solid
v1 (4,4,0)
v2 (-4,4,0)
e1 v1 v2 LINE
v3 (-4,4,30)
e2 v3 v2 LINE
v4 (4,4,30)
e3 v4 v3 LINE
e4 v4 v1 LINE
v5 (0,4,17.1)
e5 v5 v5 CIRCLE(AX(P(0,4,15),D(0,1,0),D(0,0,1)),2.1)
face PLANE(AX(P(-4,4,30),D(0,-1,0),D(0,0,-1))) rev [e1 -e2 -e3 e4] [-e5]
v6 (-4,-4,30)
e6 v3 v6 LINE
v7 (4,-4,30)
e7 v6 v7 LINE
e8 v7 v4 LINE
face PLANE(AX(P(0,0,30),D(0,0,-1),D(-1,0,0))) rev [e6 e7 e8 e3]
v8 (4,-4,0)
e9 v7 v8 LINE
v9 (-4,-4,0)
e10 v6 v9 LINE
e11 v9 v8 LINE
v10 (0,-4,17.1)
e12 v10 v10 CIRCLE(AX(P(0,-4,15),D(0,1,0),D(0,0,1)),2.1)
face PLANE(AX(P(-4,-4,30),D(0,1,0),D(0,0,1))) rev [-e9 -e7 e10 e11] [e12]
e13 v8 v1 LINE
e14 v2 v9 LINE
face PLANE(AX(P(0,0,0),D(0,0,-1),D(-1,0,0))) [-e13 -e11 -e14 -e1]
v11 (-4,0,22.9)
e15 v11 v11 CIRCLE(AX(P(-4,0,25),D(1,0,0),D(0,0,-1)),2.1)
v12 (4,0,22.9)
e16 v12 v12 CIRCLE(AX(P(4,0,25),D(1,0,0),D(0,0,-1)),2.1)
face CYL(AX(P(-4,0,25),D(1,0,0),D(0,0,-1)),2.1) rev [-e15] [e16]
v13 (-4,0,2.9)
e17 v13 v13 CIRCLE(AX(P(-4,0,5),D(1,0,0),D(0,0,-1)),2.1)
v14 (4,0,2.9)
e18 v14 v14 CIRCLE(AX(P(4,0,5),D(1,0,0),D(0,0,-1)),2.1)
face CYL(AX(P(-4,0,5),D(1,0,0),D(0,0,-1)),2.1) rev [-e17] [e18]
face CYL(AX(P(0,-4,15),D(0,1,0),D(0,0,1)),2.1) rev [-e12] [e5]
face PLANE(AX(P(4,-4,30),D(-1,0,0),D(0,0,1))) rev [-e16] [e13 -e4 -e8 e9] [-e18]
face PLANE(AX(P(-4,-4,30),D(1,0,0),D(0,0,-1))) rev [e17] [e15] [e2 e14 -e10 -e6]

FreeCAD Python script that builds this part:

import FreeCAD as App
import Part
import Sketcher

V = App.Vector
Q = App.Units.Quantity

doc = App.newDocument("Part")
body = doc.addObject("PartDesign::Body", "Body")

sketch1 = body.newObject("Sketcher::SketchObject", "Sketch")
sketch1.AttachmentSupport = (doc.getObject("XY_Plane"), [""])
sketch1.MapMode = "FlatFace"
sketch1.addGeometry([
    Part.LineSegment(V(-4, 4, 0), V(-4, -4, 0)),
    Part.LineSegment(V(-4, -4, 0), V(4, -4, 0)),
    Part.LineSegment(V(4, -4, 0), V(4, 4, 0)),
    Part.LineSegment(V(4, 4, 0), V(-4, 4, 0)),
], False)
sketch1.addConstraint([
    Sketcher.Constraint("Coincident", 0, 2, 1, 1),
    Sketcher.Constraint("Coincident", 1, 2, 2, 1),
    Sketcher.Constraint("Coincident", 2, 2, 3, 1),
    Sketcher.Constraint("Coincident", 3, 2, 0, 1),
    Sketcher.Constraint("Vertical", 0),
    Sketcher.Constraint("Horizontal", 1),
    Sketcher.Constraint("Vertical", 2),
    Sketcher.Constraint("Horizontal", 3),
    Sketcher.Constraint("Symmetric", 0, 2, 2, 2, -1, 1),
    Sketcher.Constraint("Equal", 3, 0),
    Sketcher.Constraint("DistanceX", 1, 1, 1, 2, Q("8 mm")),
])
pad1 = body.newObject("PartDesign::Pad", "Pad")
pad1.Profile = sketch1
pad1.Length = 30

sketch2 = body.newObject("Sketcher::SketchObject", "Sketch001")
sketch2.AttachmentSupport = (doc.getObject("XZ_Plane"), [""])
sketch2.MapMode = "FlatFace"
sketch2.AttachmentOffset = App.Placement(V(0, 0, -4), App.Rotation())
sketch2.addGeometry(Part.Circle(V(0, 15, 0), V(0, 0, 1), 2.1), False)
sketch2.addConstraint([
    Sketcher.Constraint("PointOnObject", 0, 3, -2),
    Sketcher.Constraint("Diameter", 0, Q("4.2 mm")),
    Sketcher.Constraint("DistanceY", -1, 1, 0, 3, Q("15 mm")),
])
pocket1 = body.newObject("PartDesign::Pocket", "Pocket")
pocket1.Profile = sketch2
pocket1.Type = "ThroughAll"
pocket1.Reversed = True

sketch3 = body.newObject("Sketcher::SketchObject", "Sketch002")
sketch3.AttachmentSupport = (doc.getObject("YZ_Plane"), [""])
sketch3.MapMode = "FlatFace"
sketch3.AttachmentOffset = App.Placement(V(0, 0, 4), App.Rotation())
sketch3.addGeometry([
    Part.Circle(V(0, 25, 0), V(0, 0, 1), 2.1),
    Part.Circle(V(0, 5, 0), V(0, 0, 1), 2.1),
], False)
sketch3.addConstraint([
    Sketcher.Constraint("Equal", 0, 1),
    Sketcher.Constraint("PointOnObject", 0, 3, -2),
    Sketcher.Constraint("PointOnObject", 1, 3, -2),
    Sketcher.Constraint("Diameter", 0, Q("4.2 mm")),
    Sketcher.Constraint("DistanceY", -1, 1, 0, 3, Q("25 mm")),
    Sketcher.Constraint("DistanceY", -1, 1, 1, 3, Q("5 mm")),
])
pocket2 = body.newObject("PartDesign::Pocket", "Pocket001")
pocket2.Profile = sketch3
pocket2.Type = "ThroughAll"

doc.recompute()
